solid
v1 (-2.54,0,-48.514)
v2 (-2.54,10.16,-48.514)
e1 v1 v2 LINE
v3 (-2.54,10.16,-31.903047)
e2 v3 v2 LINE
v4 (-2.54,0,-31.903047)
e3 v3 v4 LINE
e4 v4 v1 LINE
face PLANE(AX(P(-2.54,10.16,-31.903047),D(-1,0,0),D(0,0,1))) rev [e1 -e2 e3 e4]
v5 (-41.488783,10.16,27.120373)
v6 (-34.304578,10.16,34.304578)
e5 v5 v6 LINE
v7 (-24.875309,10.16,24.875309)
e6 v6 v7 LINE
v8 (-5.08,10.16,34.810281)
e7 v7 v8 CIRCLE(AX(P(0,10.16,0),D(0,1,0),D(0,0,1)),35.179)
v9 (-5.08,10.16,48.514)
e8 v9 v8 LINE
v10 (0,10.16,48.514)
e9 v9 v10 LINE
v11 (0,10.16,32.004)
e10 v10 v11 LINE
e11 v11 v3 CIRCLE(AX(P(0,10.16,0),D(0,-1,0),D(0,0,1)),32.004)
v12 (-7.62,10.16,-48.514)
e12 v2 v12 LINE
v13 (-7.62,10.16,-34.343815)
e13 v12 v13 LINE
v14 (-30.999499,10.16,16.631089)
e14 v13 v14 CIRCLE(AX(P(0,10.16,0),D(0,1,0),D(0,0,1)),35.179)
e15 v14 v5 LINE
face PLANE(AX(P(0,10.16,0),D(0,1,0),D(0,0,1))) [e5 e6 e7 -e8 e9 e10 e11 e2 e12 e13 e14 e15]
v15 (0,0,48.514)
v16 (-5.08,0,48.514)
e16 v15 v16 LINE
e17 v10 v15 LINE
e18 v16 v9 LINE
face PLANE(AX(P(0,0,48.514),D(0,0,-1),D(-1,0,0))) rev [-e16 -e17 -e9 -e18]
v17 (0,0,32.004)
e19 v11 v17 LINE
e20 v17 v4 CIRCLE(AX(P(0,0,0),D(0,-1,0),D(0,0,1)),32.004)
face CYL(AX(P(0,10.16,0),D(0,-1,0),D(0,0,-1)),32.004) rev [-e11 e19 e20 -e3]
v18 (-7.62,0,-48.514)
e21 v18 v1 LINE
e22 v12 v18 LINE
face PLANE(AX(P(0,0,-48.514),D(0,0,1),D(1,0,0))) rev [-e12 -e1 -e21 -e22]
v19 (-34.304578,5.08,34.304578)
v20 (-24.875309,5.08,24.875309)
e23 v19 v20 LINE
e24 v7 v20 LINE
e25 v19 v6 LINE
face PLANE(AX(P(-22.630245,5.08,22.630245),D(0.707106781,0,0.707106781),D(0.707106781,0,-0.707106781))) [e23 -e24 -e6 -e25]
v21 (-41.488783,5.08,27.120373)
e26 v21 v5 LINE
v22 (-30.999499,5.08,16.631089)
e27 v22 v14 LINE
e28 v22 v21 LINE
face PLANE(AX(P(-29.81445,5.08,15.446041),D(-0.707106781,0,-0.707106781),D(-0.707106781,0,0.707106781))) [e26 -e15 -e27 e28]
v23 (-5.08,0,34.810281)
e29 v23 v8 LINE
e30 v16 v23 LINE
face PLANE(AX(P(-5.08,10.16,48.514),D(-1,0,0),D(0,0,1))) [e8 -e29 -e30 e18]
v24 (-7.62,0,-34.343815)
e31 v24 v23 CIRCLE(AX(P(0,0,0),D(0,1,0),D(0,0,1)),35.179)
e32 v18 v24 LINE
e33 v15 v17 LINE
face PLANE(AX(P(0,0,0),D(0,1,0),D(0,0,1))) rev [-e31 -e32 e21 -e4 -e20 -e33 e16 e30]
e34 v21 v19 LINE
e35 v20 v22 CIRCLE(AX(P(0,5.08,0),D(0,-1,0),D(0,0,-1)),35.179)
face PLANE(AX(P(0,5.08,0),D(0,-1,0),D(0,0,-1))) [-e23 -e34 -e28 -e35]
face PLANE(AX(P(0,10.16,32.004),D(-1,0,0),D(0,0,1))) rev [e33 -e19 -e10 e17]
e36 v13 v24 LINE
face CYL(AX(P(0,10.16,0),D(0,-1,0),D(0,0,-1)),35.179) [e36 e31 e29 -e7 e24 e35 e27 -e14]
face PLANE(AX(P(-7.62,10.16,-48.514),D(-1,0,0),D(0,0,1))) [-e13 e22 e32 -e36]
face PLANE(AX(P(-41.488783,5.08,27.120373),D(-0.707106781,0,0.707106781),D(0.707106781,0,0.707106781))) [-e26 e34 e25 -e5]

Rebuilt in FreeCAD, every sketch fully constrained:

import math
import FreeCAD as App
import Part
import Sketcher
from FreeCAD import Vector
Q = App.Units.Quantity

doc = App.newDocument("Part")
body = doc.addObject("PartDesign::Body", "Body")

sketch1 = body.newObject("Sketcher::SketchObject", "Sketch")
sketch1.AttachmentSupport = (doc.getObject("XZ_Plane"), [""])
sketch1.MapMode = "FlatFace"
sketch1.addGeometry([
    Part.LineSegment(Vector(0, 35.2, 0), Vector(0, 32, 0)),
    Part.ArcOfCircle(Part.Circle(Vector(0, 0, 0), Vector(0, 0, 1), 32), math.radians(90), math.radians(265)),
    Part.LineSegment(Vector(-2.5, -31.9, 0), Vector(-2.5, -35.1, 0)),
    Part.ArcOfCircle(Part.Circle(Vector(0, 0, 0), Vector(0, 0, 1), 35.2), math.radians(90), math.radians(266)),
], False)
sketch1.addConstraint([
    Sketcher.Constraint("Coincident", 0, 2, 1, 1),
    Sketcher.Constraint("Coincident", 1, 2, 2, 1),
    Sketcher.Constraint("Coincident", 2, 2, 3, 2),
    Sketcher.Constraint("Coincident", 3, 1, 0, 1),
    Sketcher.Constraint("Vertical", 0),
    Sketcher.Constraint("Vertical", 2),
    Sketcher.Constraint("Coincident", 1, 3, -1, 1),
    Sketcher.Constraint("Coincident", 3, 3, -1, 1),
    Sketcher.Constraint("PointOnObject", 0, 2, -2),
    Sketcher.Constraint("Radius", 1, Q("1.26 in")),
    Sketcher.Constraint("Radius", 3, Q("1.385 in")),
    Sketcher.Constraint("DistanceX", 1, 2, -1, 1, Q("0.1 in")),
])
pad1 = body.newObject("PartDesign::Pad", "Pad")
pad1.Profile = sketch1
pad1.Length = Q("0.4 in")
pad1.Reversed = True

sketch2 = body.newObject("Sketcher::SketchObject", "Sketch001")
sketch2.AttachmentSupport = (doc.getObject("XY_Plane"), [""])
sketch2.MapMode = "FlatFace"
sketch2.AttachmentOffset = App.Placement(Vector(0, 0, 1.26 * 25.4), App.Rotation())
sketch2.addGeometry([
    Part.LineSegment(Vector(-5, 10, 0), Vector(0, 10, 0)),
    Part.LineSegment(Vector(0, 10, 0), Vector(0, 0, 0)),
    Part.LineSegment(Vector(0, 0, 0), Vector(-5, 0, 0)),
    Part.LineSegment(Vector(-5, 0, 0), Vector(-5, 10, 0)),
], False)
sketch2.addConstraint([
    Sketcher.Constraint("Coincident", 0, 2, 1, 1),
    Sketcher.Constraint("Coincident", 1, 2, 2, 1),
    Sketcher.Constraint("Coincident", 2, 2, 3, 1),
    Sketcher.Constraint("Coincident", 3, 2, 0, 1),
    Sketcher.Constraint("Horizontal", 0),
    Sketcher.Constraint("Vertical", 1),
    Sketcher.Constraint("Horizontal", 2),
    Sketcher.Constraint("Vertical", 3),
    Sketcher.Constraint("Coincident", 1, 2, -1, 1),
    Sketcher.Constraint("DistanceX", 0, 1, 0, 2, Q("0.2 in")),
    Sketcher.Constraint("DistanceY", 1, 2, 1, 1, Q("0.4 in")),
])
pad2 = body.newObject("PartDesign::Pad", "Pad001")
pad2.Profile = sketch2
pad2.Length = Q("0.65 in")

sketch3 = body.newObject("Sketcher::SketchObject", "Sketch002")
sketch3.AttachmentSupport = (doc.getObject("XY_Plane"), [""])
sketch3.MapMode = "FlatFace"
sketch3.AttachmentOffset = App.Placement(Vector(0, 0, -1.26 * 25.4), App.Rotation())
sketch3.addGeometry([
    Part.LineSegment(Vector(-3, 10, 0), Vector(-8, 10, 0)),
    Part.LineSegment(Vector(-8, 10, 0), Vector(-8, 0, 0)),
    Part.LineSegment(Vector(-8, 0, 0), Vector(-3, 0, 0)),
    Part.LineSegment(Vector(-3, 0, 0), Vector(-3, 10, 0)),
], False)
sketch3.addConstraint([
    Sketcher.Constraint("Coincident", 0, 2, 1, 1),
    Sketcher.Constraint("Coincident", 1, 2, 2, 1),
    Sketcher.Constraint("Coincident", 2, 2, 3, 1),
    Sketcher.Constraint("Coincident", 3, 2, 0, 1),
    Sketcher.Constraint("Horizontal", 0),
    Sketcher.Constraint("Vertical", 1),
    Sketcher.Constraint("Horizontal", 2),
    Sketcher.Constraint("Vertical", 3),
    Sketcher.Constraint("PointOnObject", 1, 2, -1),
    Sketcher.Constraint("DistanceX", 0, 2, 0, 1, Q("0.2 in")),
    Sketcher.Constraint("DistanceY", 1, 2, 1, 1, Q("0.4 in")),
    Sketcher.Constraint("DistanceX", 0, 2, -1, 1, Q("0.3 in")),
])
pad3 = body.newObject("PartDesign::Pad", "Pad002")
pad3.Profile = sketch3
pad3.Length = Q("0.65 in")
pad3.Reversed = True

sketch4 = body.newObject("Sketcher::SketchObject", "Sketch003")
sketch4.AttachmentSupport = (doc.getObject("XZ_Plane"), [""])
sketch4.MapMode = "FlatFace"
sketch4.AttachmentOffset = App.Placement(Vector(0, 0, -0.4 * 25.4), App.Rotation())
sketch4.addGeometry([
    Part.LineSegment(Vector(-34, 34, 0), Vector(-23, 23, 0)),
    Part.LineSegment(Vector(-23, 23, 0), Vector(-30, 15, 0)),
    Part.LineSegment(Vector(-30, 15, 0), Vector(-41, 27, 0)),
    Part.LineSegment(Vector(-41, 27, 0), Vector(-34, 34, 0)),
], False)
sketch4.addConstraint([
    Sketcher.Constraint("Coincident", 0, 2, 1, 1),
    Sketcher.Constraint("Coincident", 1, 2, 2, 1),
    Sketcher.Constraint("Coincident", 2, 2, 3, 1),
    Sketcher.Constraint("Coincident", 3, 2, 0, 1),
    Sketcher.Constraint("Perpendicular", 0, 1),
    Sketcher.Constraint("Perpendicular", 1, 2),
    Sketcher.Constraint("Perpendicular", 2, 3),
    Sketcher.Constraint("Angle", 0, Q("-45 deg")),
    Sketcher.Constraint("Distance", 1, Q("0.4 in")),
    Sketcher.Constraint("Distance", 0, Q("0.65 in")),
    Sketcher.Constraint("DistanceX", 1, 2, -1, 1, Q("29.81445 mm")),
    Sketcher.Constraint("DistanceY", -1, 1, 1, 2, Q("15.446041 mm")),
])
pad4 = body.newObject("PartDesign::Pad", "Pad003")
pad4.Profile = sketch4
pad4.Length = Q("0.2 in")

doc.recompute()
